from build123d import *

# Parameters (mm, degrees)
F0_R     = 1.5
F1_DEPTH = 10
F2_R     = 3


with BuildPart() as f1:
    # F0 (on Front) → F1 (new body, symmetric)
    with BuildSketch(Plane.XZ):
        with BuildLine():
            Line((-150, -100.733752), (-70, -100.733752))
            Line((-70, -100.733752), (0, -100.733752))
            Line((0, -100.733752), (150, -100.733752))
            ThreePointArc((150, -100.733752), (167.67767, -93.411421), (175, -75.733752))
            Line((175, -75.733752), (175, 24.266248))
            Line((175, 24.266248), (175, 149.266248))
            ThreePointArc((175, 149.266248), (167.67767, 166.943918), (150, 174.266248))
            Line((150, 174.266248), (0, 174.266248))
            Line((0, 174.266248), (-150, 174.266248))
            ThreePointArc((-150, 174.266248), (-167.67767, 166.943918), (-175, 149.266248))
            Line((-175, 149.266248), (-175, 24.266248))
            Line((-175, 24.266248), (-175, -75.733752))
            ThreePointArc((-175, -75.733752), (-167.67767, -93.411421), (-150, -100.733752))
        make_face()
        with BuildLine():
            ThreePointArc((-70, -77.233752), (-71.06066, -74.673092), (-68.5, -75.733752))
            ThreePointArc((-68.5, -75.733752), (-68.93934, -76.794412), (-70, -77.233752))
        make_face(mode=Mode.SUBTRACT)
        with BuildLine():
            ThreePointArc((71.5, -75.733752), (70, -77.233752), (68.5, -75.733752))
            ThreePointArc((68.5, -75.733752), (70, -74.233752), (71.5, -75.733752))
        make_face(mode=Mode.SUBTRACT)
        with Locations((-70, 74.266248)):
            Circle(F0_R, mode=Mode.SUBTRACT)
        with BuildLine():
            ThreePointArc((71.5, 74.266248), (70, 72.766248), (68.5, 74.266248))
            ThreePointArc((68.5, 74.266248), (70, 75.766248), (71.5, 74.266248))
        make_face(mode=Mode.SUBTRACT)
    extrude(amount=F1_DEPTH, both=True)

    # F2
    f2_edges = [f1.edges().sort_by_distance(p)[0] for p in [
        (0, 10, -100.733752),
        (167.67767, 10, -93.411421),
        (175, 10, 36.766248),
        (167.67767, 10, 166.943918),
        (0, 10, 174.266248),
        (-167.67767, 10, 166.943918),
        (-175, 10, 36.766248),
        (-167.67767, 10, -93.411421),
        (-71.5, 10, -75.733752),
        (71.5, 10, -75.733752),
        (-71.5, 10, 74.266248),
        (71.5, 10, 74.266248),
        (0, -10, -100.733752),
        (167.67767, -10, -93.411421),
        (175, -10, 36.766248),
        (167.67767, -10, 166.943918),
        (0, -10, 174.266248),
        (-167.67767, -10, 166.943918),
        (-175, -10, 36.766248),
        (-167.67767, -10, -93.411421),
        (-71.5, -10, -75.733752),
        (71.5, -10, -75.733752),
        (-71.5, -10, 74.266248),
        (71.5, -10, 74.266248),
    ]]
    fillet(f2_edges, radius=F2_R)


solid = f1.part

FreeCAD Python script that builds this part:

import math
import FreeCAD as App
import Part
import Sketcher


def edges_at(feature, points):
    """Names of the edges that pass closest to the given points."""
    edges = feature.Shape.Edges
    near = lambda p: min(range(len(edges)), key=lambda i: edges[i].distToShape(Part.Vertex(*p))[0])
    return sorted({f"Edge{near(p) + 1}" for p in points})

doc = App.newDocument("Part")
body = doc.addObject("PartDesign::Body", "Body")

sketch1 = body.newObject("Sketcher::SketchObject", "Sketch")
sketch1.AttachmentSupport = (doc.getObject("XZ_Plane"), [""])
sketch1.MapMode = "FlatFace"
sketch1.addGeometry(Part.LineSegment(App.Vector(-150, -100.7, 0), App.Vector(150, -100.7, 0)), False)
sketch1.addGeometry(Part.ArcOfCircle(Part.Circle(App.Vector(150, -75.7, 0), App.Vector(0, 0, 1), 25), math.radians(-90), math.radians(0)), False)
sketch1.addGeometry(Part.LineSegment(App.Vector(175, -75.7, 0), App.Vector(175, 149.3, 0)), False)
sketch1.addGeometry(Part.ArcOfCircle(Part.Circle(App.Vector(150, 149.3, 0), App.Vector(0, 0, 1), 25), math.radians(0), math.radians(90)), False)
sketch1.addGeometry(Part.LineSegment(App.Vector(150, 174.3, 0), App.Vector(-150, 174.3, 0)), False)
sketch1.addGeometry(Part.ArcOfCircle(Part.Circle(App.Vector(-150, 149.3, 0), App.Vector(0, 0, 1), 25), math.radians(90), math.radians(180)), False)
sketch1.addGeometry(Part.LineSegment(App.Vector(-175, 149.3, 0), App.Vector(-175, -75.7, 0)), False)
sketch1.addGeometry(Part.ArcOfCircle(Part.Circle(App.Vector(-150, -75.7, 0), App.Vector(0, 0, 1), 25), math.radians(-180), math.radians(-90)), False)
sketch1.addGeometry(Part.ArcOfCircle(Part.Circle(App.Vector(-70, -75.7, 0), App.Vector(0, 0, 1), 1.5), math.radians(-90), math.radians(0)), False)
sketch1.addGeometry(Part.ArcOfCircle(Part.Circle(App.Vector(-70, -75.7, 0), App.Vector(0, 0, 1), 1.5), math.radians(0), math.radians(270)), False)
sketch1.addGeometry(Part.Circle(App.Vector(70, -75.7, 0), App.Vector(0, 0, 1), 1.5), False)
sketch1.addGeometry(Part.Circle(App.Vector(-70, 74.3, 0), App.Vector(0, 0, 1), 1.5), False)
sketch1.addGeometry(Part.Circle(App.Vector(70, 74.3, 0), App.Vector(0, 0, 1), 1.5), False)
sketch1.addConstraint(Sketcher.Constraint("Tangent", 0, 2, 1, 1))
sketch1.addConstraint(Sketcher.Constraint("Tangent", 1, 2, 2, 1))
sketch1.addConstraint(Sketcher.Constraint("Tangent", 2, 2, 3, 1))
sketch1.addConstraint(Sketcher.Constraint("Tangent", 3, 2, 4, 1))
sketch1.addConstraint(Sketcher.Constraint("Tangent", 4, 2, 5, 1))
sketch1.addConstraint(Sketcher.Constraint("Tangent", 5, 2, 6, 1))
sketch1.addConstraint(Sketcher.Constraint("Tangent", 6, 2, 7, 1))
sketch1.addConstraint(Sketcher.Constraint("Tangent", 7, 2, 0, 1))
sketch1.addConstraint(Sketcher.Constraint("Tangent", 8, 1, 9, 2))
sketch1.addConstraint(Sketcher.Constraint("Coincident", 9, 1, 8, 2))
sketch1.addConstraint(Sketcher.Constraint("Horizontal", 0))
sketch1.addConstraint(Sketcher.Constraint("Vertical", 2))
sketch1.addConstraint(Sketcher.Constraint("Horizontal", 4))
sketch1.addConstraint(Sketcher.Constraint("Vertical", 6))
sketch1.addConstraint(Sketcher.Constraint("Equal", 1, 3))
sketch1.addConstraint(Sketcher.Constraint("Equal", 3, 5))
sketch1.addConstraint(Sketcher.Constraint("Equal", 5, 7))
sketch1.addConstraint(Sketcher.Constraint("Equal", 9, 10))
sketch1.addConstraint(Sketcher.Constraint("Equal", 10, 11))
sketch1.addConstraint(Sketcher.Constraint("Equal", 11, 12))
sketch1.addConstraint(Sketcher.Constraint("Symmetric", 8, 3, 10, 3, -2))
sketch1.addConstraint(Sketcher.Constraint("Symmetric", 11, 3, 12, 3, -2))
sketch1.addConstraint(Sketcher.Constraint("Horizontal", 7, 3, 8, 3))
sketch1.addConstraint(Sketcher.Constraint("Horizontal", 6, 2, 9, 1))
sketch1.addConstraint(Sketcher.Constraint("Vertical", 9, 3, 11, 3))
sketch1.addConstraint(Sketcher.Constraint("Vertical", 11, 3, 8, 1))
sketch1.addConstraint(Sketcher.Constraint("Diameter", 10, 3.0))
sketch1.addConstraint(Sketcher.Constraint("Radius", 1, 25.0))
sketch1.addConstraint(Sketcher.Constraint("DistanceX", 0, 1, 0, 2, 300.0))
sketch1.addConstraint(Sketcher.Constraint("DistanceY", 2, 1, 2, 2, 225.0))
sketch1.addConstraint(Sketcher.Constraint("DistanceX", -1, 1, 1, 3, 150.0))
sketch1.addConstraint(Sketcher.Constraint("DistanceX", 8, 3, -1, 1, 70.000001))
sketch1.addConstraint(Sketcher.Constraint("DistanceY", 11, 3, 5, 3, 75.000002))
sketch1.addConstraint(Sketcher.Constraint("DistanceY", 1, 3, -1, 1, 75.733752))
pad1 = body.newObject("PartDesign::Pad", "Pad")
pad1.Profile = sketch1
pad1.Length = 20
pad1.Midplane = True
doc.recompute()

fillet = body.newObject("PartDesign::Fillet", "Fillet")
fillet.Base = (pad1, edges_at(pad1, [
    (0, 10, -100.734),
    (167.678, 10, -93.411),
    (175, 10, 36.766),
    (167.678, 10, 166.944),
    (0, 10, 174.266),
    (-167.678, 10, 166.944),
    (-175, 10, 36.766),
    (-167.678, 10, -93.411),
    (-71.061, 10, -74.673),
    (71.5, 10, -75.734),
    (-71.5, 10, 74.266),
    (71.5, 10, 74.266),
    (0, -10, -100.734),
    (167.678, -10, -93.411),
    (175, -10, 36.766),
    (167.678, -10, 166.944),
    (0, -10, 174.266),
    (-167.678, -10, 166.944),
    (-175, -10, 36.766),
    (-167.678, -10, -93.411),
    (-71.061, -10, -74.673),
    (71.5, -10, -75.734),
    (-71.5, -10, 74.266),
    (71.5, -10, 74.266),
]))
fillet.Radius = 3

doc.recompute()
